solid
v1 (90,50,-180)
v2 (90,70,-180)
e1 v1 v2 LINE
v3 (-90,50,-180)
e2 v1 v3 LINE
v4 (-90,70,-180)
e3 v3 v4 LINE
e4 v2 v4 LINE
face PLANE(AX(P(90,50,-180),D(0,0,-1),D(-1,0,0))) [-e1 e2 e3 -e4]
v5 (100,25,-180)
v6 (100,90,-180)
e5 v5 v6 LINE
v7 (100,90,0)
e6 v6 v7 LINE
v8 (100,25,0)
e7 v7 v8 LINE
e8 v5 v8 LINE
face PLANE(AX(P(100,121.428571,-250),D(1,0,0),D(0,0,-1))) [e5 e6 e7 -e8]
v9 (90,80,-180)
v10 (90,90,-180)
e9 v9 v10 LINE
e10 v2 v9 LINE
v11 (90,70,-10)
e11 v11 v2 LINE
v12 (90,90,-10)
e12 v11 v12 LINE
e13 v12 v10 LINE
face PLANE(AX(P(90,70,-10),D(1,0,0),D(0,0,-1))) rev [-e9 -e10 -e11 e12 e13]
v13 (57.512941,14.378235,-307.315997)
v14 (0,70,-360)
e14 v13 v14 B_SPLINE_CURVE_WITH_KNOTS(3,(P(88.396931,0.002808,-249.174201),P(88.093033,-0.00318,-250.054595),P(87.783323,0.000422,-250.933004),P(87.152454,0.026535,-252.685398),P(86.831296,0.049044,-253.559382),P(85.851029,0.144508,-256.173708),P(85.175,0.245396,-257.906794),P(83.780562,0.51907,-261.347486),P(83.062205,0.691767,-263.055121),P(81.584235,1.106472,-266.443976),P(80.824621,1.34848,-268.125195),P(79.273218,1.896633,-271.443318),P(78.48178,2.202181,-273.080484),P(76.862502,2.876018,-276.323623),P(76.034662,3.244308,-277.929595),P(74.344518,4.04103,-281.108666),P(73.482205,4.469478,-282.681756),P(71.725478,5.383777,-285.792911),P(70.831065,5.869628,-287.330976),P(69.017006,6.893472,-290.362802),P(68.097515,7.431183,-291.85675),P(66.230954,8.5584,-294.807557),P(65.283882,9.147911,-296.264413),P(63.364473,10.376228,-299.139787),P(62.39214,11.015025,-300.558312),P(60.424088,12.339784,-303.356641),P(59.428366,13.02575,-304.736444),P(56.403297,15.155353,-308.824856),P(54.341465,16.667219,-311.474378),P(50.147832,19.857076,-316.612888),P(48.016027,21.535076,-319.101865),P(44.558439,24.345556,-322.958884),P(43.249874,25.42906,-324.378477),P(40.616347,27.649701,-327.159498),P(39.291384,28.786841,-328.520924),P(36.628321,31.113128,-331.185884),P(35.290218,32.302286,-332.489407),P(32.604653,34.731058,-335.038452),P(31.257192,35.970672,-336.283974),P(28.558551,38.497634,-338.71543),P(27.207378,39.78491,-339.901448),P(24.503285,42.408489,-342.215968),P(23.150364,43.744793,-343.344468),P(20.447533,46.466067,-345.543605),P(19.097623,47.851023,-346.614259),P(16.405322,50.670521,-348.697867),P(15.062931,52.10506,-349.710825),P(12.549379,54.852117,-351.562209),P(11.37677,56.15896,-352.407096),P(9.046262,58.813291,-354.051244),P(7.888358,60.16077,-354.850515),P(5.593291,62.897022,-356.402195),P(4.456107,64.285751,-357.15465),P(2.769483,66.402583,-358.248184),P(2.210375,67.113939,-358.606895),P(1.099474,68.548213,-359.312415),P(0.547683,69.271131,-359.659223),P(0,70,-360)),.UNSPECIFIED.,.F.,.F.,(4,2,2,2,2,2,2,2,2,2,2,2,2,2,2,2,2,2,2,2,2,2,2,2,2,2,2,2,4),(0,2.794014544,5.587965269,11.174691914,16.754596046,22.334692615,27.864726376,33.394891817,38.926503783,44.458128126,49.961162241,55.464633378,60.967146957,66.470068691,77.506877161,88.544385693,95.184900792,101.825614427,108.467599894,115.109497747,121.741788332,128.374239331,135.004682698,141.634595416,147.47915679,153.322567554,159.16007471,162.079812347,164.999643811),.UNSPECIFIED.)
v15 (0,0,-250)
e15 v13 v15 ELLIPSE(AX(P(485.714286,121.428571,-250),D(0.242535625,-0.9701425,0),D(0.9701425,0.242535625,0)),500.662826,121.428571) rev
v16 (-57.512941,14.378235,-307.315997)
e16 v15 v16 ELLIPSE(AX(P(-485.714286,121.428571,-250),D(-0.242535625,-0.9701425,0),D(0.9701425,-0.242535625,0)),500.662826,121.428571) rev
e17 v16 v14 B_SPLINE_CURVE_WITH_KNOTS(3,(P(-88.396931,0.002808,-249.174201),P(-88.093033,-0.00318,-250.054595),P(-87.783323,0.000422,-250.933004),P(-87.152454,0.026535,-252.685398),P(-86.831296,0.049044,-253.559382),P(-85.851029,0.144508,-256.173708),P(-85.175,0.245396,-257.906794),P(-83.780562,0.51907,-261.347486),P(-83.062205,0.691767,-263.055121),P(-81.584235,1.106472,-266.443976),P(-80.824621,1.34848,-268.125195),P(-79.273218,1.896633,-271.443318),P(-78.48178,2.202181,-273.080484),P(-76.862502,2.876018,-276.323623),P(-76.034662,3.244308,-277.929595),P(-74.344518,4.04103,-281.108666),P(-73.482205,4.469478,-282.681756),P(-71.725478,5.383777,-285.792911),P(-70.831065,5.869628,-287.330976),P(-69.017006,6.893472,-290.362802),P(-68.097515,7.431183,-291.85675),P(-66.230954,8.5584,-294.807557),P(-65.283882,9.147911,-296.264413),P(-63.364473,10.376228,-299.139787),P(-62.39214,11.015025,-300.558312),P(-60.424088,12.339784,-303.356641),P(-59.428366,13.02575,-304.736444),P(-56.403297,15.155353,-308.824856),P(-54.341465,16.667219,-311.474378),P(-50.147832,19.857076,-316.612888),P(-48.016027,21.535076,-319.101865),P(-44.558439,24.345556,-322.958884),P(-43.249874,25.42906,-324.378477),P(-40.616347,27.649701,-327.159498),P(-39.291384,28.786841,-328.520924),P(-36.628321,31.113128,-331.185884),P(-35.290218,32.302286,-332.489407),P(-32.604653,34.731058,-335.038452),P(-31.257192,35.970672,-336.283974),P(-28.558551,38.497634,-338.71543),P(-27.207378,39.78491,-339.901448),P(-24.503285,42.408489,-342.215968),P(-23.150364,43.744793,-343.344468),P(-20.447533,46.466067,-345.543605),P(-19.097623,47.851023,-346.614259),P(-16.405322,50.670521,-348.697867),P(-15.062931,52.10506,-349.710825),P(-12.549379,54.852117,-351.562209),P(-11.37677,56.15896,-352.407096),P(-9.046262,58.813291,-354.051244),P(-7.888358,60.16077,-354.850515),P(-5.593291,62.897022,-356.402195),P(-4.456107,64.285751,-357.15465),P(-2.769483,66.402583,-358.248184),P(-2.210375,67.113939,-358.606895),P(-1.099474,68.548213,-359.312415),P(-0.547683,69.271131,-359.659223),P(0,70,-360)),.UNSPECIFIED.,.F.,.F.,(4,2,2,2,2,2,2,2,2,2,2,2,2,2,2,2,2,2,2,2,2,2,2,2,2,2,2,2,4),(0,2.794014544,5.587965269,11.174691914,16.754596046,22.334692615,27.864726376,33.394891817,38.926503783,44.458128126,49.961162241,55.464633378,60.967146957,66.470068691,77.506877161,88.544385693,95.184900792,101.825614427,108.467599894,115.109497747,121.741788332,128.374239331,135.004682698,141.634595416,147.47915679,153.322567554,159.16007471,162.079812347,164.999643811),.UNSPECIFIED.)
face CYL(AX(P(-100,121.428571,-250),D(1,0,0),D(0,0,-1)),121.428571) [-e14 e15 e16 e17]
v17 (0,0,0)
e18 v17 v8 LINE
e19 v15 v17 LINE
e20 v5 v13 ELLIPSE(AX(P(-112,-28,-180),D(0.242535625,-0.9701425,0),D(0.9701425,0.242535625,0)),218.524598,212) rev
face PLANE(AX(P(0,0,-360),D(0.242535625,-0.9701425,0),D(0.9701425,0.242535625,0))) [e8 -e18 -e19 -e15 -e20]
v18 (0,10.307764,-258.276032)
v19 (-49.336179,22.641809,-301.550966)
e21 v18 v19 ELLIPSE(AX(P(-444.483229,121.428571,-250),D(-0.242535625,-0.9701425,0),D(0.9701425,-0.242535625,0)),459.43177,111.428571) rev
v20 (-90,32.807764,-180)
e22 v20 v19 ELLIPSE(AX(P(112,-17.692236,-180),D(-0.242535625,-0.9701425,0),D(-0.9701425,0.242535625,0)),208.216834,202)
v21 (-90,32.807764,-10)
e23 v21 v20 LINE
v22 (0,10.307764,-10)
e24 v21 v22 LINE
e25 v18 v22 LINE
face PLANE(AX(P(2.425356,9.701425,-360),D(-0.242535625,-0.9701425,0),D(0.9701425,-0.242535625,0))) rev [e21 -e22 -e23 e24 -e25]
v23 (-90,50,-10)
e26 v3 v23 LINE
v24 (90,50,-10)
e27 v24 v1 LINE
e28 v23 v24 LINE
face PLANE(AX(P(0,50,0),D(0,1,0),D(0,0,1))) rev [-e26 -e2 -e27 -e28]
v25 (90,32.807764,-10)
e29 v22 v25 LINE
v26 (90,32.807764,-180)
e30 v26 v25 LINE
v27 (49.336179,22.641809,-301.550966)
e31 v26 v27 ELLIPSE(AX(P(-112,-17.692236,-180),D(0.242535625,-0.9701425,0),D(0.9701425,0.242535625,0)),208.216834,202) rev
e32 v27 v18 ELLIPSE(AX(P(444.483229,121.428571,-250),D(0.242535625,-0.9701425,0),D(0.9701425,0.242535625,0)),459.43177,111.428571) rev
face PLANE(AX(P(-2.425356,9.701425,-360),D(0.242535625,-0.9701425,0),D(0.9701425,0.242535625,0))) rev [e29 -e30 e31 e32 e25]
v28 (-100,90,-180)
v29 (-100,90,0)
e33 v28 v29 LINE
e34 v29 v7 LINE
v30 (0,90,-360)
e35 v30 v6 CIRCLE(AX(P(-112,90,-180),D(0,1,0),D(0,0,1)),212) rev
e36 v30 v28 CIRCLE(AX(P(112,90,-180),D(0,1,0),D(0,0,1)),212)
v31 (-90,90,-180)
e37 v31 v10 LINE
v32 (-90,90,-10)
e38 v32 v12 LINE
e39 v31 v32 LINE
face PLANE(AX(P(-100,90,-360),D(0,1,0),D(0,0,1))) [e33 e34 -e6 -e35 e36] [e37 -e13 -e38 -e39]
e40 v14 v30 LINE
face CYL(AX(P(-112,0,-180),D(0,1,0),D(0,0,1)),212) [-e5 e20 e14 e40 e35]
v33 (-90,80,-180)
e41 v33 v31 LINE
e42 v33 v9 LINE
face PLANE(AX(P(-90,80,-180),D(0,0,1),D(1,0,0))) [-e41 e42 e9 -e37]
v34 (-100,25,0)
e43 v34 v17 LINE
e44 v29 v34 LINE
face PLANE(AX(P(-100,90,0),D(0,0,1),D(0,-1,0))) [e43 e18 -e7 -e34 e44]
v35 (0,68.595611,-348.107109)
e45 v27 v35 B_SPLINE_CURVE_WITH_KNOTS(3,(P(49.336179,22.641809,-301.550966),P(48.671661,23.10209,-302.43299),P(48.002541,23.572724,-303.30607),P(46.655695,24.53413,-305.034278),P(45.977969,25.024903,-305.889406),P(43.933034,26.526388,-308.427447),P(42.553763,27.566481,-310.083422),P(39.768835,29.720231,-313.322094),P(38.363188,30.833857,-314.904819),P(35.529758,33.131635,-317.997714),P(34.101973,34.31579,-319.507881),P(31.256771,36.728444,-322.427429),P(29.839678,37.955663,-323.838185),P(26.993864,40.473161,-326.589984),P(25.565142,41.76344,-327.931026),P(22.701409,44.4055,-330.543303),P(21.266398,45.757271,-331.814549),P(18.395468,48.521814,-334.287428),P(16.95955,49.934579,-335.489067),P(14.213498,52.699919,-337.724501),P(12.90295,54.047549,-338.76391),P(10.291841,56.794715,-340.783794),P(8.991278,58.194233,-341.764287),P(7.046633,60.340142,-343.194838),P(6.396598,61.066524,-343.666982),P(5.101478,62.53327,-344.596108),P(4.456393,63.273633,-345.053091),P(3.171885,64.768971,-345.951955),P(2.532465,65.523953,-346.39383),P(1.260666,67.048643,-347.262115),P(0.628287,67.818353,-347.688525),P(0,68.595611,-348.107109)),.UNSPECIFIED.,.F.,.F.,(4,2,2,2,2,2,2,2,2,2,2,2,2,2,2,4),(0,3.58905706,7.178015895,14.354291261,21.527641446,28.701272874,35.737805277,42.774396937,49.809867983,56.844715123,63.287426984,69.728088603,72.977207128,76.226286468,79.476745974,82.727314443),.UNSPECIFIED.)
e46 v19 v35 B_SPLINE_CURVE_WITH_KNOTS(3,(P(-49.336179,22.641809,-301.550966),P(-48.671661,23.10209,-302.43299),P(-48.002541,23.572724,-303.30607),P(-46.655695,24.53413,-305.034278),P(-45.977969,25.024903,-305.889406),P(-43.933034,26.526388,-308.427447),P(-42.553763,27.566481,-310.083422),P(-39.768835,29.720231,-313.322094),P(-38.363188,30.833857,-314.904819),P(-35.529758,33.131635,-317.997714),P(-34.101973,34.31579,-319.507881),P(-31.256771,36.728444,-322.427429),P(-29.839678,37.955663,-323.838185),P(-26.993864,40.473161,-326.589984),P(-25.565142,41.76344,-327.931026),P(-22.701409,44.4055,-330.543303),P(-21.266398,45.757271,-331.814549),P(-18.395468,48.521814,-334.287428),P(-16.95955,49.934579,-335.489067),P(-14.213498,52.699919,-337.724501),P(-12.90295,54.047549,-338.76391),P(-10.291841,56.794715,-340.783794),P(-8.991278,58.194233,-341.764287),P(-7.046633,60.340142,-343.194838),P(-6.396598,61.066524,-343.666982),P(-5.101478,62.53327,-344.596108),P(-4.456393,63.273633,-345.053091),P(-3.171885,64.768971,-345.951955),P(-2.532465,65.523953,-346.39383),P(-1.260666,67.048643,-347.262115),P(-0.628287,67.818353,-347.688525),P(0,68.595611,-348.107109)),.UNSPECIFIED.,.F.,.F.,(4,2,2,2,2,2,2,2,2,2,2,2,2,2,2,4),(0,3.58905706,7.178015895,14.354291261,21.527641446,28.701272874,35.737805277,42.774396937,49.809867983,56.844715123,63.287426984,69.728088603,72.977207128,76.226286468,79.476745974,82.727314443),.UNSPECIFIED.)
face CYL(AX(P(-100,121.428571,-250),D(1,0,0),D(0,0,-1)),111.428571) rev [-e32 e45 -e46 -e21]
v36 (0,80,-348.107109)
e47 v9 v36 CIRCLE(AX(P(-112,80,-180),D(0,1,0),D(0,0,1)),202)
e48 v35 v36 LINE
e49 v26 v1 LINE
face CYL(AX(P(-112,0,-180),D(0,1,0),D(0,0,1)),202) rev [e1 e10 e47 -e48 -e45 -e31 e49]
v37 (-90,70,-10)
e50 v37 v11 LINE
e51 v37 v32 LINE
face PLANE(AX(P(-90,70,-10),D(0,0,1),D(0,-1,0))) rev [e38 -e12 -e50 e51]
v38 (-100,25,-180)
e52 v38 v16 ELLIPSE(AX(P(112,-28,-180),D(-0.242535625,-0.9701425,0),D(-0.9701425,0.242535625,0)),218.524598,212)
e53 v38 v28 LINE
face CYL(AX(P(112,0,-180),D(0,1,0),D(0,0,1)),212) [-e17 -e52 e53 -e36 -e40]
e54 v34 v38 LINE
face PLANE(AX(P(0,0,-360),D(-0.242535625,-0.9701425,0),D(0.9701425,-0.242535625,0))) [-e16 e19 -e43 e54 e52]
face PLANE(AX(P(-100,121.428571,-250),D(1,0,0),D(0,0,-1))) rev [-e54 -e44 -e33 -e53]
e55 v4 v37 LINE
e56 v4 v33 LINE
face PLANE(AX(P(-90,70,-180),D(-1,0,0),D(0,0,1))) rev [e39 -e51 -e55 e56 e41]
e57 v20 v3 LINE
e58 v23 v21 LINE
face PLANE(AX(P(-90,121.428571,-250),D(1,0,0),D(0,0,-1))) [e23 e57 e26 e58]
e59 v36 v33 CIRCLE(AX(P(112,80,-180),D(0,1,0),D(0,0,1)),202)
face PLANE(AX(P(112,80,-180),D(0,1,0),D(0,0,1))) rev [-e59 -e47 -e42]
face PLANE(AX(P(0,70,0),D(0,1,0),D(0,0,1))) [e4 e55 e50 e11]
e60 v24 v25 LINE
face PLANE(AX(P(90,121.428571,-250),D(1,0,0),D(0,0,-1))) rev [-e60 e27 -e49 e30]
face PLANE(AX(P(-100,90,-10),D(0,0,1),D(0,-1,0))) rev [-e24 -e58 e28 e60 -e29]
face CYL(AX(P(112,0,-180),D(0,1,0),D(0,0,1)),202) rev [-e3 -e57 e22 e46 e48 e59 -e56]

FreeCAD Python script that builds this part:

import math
import FreeCAD as App
import Part
import Sketcher


def faces_at(feature, points):
    """Names of the faces that lie closest to the given points."""
    faces = feature.Shape.Faces
    near = lambda p: min(range(len(faces)), key=lambda i: faces[i].distToShape(Part.Vertex(*p))[0])
    return sorted({f"Face{near(p) + 1}" for p in points})

doc = App.newDocument("Part")
body = doc.addObject("PartDesign::Body", "Body")

sketch1 = body.newObject("Sketcher::SketchObject", "Sketch")
sketch1.AttachmentSupport = (doc.getObject("YZ_Plane"), [""])
sketch1.MapMode = "FlatFace"
sketch1.addGeometry(Part.LineSegment(App.Vector(0, 0, 0), App.Vector(0, -250, 0)), False)
sketch1.addGeometry(Part.ArcOfCircle(Part.Circle(App.Vector(121.428571, -250, 0), App.Vector(0, 0, 1), 121.428571), math.radians(180), math.radians(244.942385)), False)
sketch1.addGeometry(Part.LineSegment(App.Vector(70, -360, 0), App.Vector(90, -360, 0)), False)
sketch1.addGeometry(Part.LineSegment(App.Vector(90, -360, 0), App.Vector(90, 0, 0)), False)
sketch1.addGeometry(Part.LineSegment(App.Vector(90, 0, 0), App.Vector(0, 0, 0)), False)
sketch1.addConstraint(Sketcher.Constraint("Tangent", 0, 2, 1, 1))
sketch1.addConstraint(Sketcher.Constraint("Coincident", 1, 2, 2, 1))
sketch1.addConstraint(Sketcher.Constraint("Coincident", 2, 2, 3, 1))
sketch1.addConstraint(Sketcher.Constraint("Coincident", 3, 2, 4, 1))
sketch1.addConstraint(Sketcher.Constraint("Coincident", 4, 2, 0, 1))
sketch1.addConstraint(Sketcher.Constraint("Vertical", 0))
sketch1.addConstraint(Sketcher.Constraint("Horizontal", 2))
sketch1.addConstraint(Sketcher.Constraint("Vertical", 3))
sketch1.addConstraint(Sketcher.Constraint("Horizontal", 4))
sketch1.addConstraint(Sketcher.Constraint("Coincident", 4, 2, -1, 1))
sketch1.addConstraint(Sketcher.Constraint("DistanceX", 2, 1, 2, 2, 20.0))
sketch1.addConstraint(Sketcher.Constraint("DistanceX", 4, 2, 4, 1, 90.0))
sketch1.addConstraint(Sketcher.Constraint("DistanceY", 0, 2, 0, 1, 250.0))
sketch1.addConstraint(Sketcher.Constraint("DistanceY", 3, 1, 3, 2, 360.0))
pad1 = body.newObject("PartDesign::Pad", "Pad")
pad1.Profile = sketch1
pad1.Length = 200
pad1.Midplane = True

sketch2 = body.newObject("Sketcher::SketchObject", "Sketch001")
sketch2.AttachmentSupport = (doc.getObject("XY_Plane"), [""])
sketch2.MapMode = "FlatFace"
sketch2.addGeometry(Part.LineSegment(App.Vector(0, 0, 0), App.Vector(-100, 25, 0)), False)
sketch2.addGeometry(Part.LineSegment(App.Vector(-100, 25, 0), App.Vector(-100, 0, 0)), False)
sketch2.addGeometry(Part.LineSegment(App.Vector(-100, 0, 0), App.Vector(0, 0, 0)), False)
sketch2.addGeometry(Part.LineSegment(App.Vector(100, 0, 0), App.Vector(100, 25, 0)), False)
sketch2.addGeometry(Part.LineSegment(App.Vector(100, 25, 0), App.Vector(0, 0, 0)), False)
sketch2.addGeometry(Part.LineSegment(App.Vector(0, 0, 0), App.Vector(100, 0, 0)), False)
sketch2.addConstraint(Sketcher.Constraint("Coincident", 0, 2, 1, 1))
sketch2.addConstraint(Sketcher.Constraint("Coincident", 1, 2, 2, 1))
sketch2.addConstraint(Sketcher.Constraint("Coincident", 2, 2, 0, 1))
sketch2.addConstraint(Sketcher.Constraint("Coincident", 3, 2, 4, 1))
sketch2.addConstraint(Sketcher.Constraint("Coincident", 4, 2, 5, 1))
sketch2.addConstraint(Sketcher.Constraint("Coincident", 5, 2, 3, 1))
sketch2.addConstraint(Sketcher.Constraint("Vertical", 1))
sketch2.addConstraint(Sketcher.Constraint("Horizontal", 2))
sketch2.addConstraint(Sketcher.Constraint("Vertical", 3))
sketch2.addConstraint(Sketcher.Constraint("Horizontal", 5))
sketch2.addConstraint(Sketcher.Constraint("Coincident", 2, 2, -1, 1))
sketch2.addConstraint(Sketcher.Constraint("Coincident", 4, 2, -1, 1))
sketch2.addConstraint(Sketcher.Constraint("Symmetric", 0, 2, 3, 2, -2))
sketch2.addConstraint(Sketcher.Constraint("DistanceX", 2, 1, 2, 2, 100.0))
sketch2.addConstraint(Sketcher.Constraint("DistanceY", 1, 2, 1, 1, 25.0))
pocket1 = body.newObject("PartDesign::Pocket", "Pocket")
pocket1.Profile = sketch2
pocket1.Type = "ThroughAll"

sketch3 = body.newObject("Sketcher::SketchObject", "Sketch002")
sketch3.AttachmentSupport = (doc.getObject("XZ_Plane"), [""])
sketch3.MapMode = "FlatFace"
sketch3.AttachmentOffset = App.Placement(App.Vector(0, 0, -90), App.Rotation())
sketch3.addGeometry(Part.LineSegment(App.Vector(100, -360, 0), App.Vector(0, -360, 0)), False)
sketch3.addGeometry(Part.ArcOfCircle(Part.Circle(App.Vector(-112, -180, 0), App.Vector(0, 0, 1), 212), math.radians(-58.109208), math.radians(0)), False)
sketch3.addGeometry(Part.LineSegment(App.Vector(100, -180, 0), App.Vector(100, -360, 0)), False)
sketch3.addGeometry(Part.LineSegment(App.Vector(-100, -360, 0), App.Vector(-100, -180, 0)), False)
sketch3.addGeometry(Part.ArcOfCircle(Part.Circle(App.Vector(112, -180, 0), App.Vector(0, 0, 1), 212), math.radians(180), math.radians(238.109208)), False)
sketch3.addGeometry(Part.LineSegment(App.Vector(0, -360, 0), App.Vector(-100, -360, 0)), False)
sketch3.addConstraint(Sketcher.Constraint("Coincident", 0, 2, 1, 1))
sketch3.addConstraint(Sketcher.Constraint("Tangent", 1, 2, 2, 1))
sketch3.addConstraint(Sketcher.Constraint("Coincident", 2, 2, 0, 1))
sketch3.addConstraint(Sketcher.Constraint("Tangent", 3, 2, 4, 1))
sketch3.addConstraint(Sketcher.Constraint("Coincident", 4, 2, 5, 1))
sketch3.addConstraint(Sketcher.Constraint("Coincident", 5, 2, 3, 1))
sketch3.addConstraint(Sketcher.Constraint("Horizontal", 0))
sketch3.addConstraint(Sketcher.Constraint("Vertical", 2))
sketch3.addConstraint(Sketcher.Constraint("Vertical", 3))
sketch3.addConstraint(Sketcher.Constraint("Horizontal", 5))
sketch3.addConstraint(Sketcher.Constraint("Coincident", 4, 2, 0, 2))
sketch3.addConstraint(Sketcher.Constraint("Equal", 1, 4))
sketch3.addConstraint(Sketcher.Constraint("Symmetric", 1, 3, 4, 3, -2))
sketch3.addConstraint(Sketcher.Constraint("Radius", 1, 212.0))
sketch3.addConstraint(Sketcher.Constraint("DistanceX", 0, 2, 0, 1, 100.0))
sketch3.addConstraint(Sketcher.Constraint("DistanceY", 1, 3, -1, 1, 180.0))
pocket2 = body.newObject("PartDesign::Pocket", "Pocket001")
pocket2.Profile = sketch3
pocket2.Type = "ThroughAll"
pocket2.Reversed = True
doc.recompute()

thickness = body.newObject("PartDesign::Thickness", "Thickness")
thickness.Base = (pocket2, faces_at(pocket2, [(0, 90, -180)]))
thickness.Value = 10
thickness.Reversed = True
thickness.Join = "Arc"

sketch4 = body.newObject("Sketcher::SketchObject", "Sketch003")
sketch4.AttachmentSupport = (doc.getObject("XZ_Plane"), [""])
sketch4.MapMode = "FlatFace"
sketch4.AttachmentOffset = App.Placement(App.Vector(0, 0, -90), App.Rotation())
sketch4.addGeometry(Part.LineSegment(App.Vector(-90, -180, 0), App.Vector(-90, -10, 0)), False)
sketch4.addGeometry(Part.LineSegment(App.Vector(-90, -10, 0), App.Vector(90, -10, 0)), False)
sketch4.addGeometry(Part.LineSegment(App.Vector(90, -10, 0), App.Vector(90, -180, 0)), False)
sketch4.addGeometry(Part.LineSegment(App.Vector(90, -180, 0), App.Vector(-90, -180, 0)), False)
sketch4.addConstraint(Sketcher.Constraint("Coincident", 0, 2, 1, 1))
sketch4.addConstraint(Sketcher.Constraint("Coincident", 1, 2, 2, 1))
sketch4.addConstraint(Sketcher.Constraint("Coincident", 2, 2, 3, 1))
sketch4.addConstraint(Sketcher.Constraint("Coincident", 3, 2, 0, 1))
sketch4.addConstraint(Sketcher.Constraint("Vertical", 0))
sketch4.addConstraint(Sketcher.Constraint("Horizontal", 1))
sketch4.addConstraint(Sketcher.Constraint("Vertical", 2))
sketch4.addConstraint(Sketcher.Constraint("Horizontal", 3))
sketch4.addConstraint(Sketcher.Constraint("DistanceX", 1, 1, 1, 2, 180.0))
sketch4.addConstraint(Sketcher.Constraint("DistanceY", 0, 1, 0, 2, 170.0))
sketch4.addConstraint(Sketcher.Constraint("DistanceX", 0, 2, -1, 1, 90.0))
sketch4.addConstraint(Sketcher.Constraint("DistanceY", 0, 2, -1, 1, 10.0))
pad2 = body.newObject("PartDesign::Pad", "Pad001")
pad2.Profile = sketch4
pad2.Length = 40

sketch5 = body.newObject("Sketcher::SketchObject", "Sketch004")
sketch5.AttachmentSupport = (doc.getObject("XZ_Plane"), [""])
sketch5.MapMode = "FlatFace"
sketch5.AttachmentOffset = App.Placement(App.Vector(0, 0, -90), App.Rotation())
sketch5.addGeometry(Part.LineSegment(App.Vector(-90, -180, 0), App.Vector(-90, -10, 0)), False)
sketch5.addGeometry(Part.LineSegment(App.Vector(-90, -10, 0), App.Vector(90, -10, 0)), False)
sketch5.addGeometry(Part.LineSegment(App.Vector(90, -10, 0), App.Vector(90, -180, 0)), False)
sketch5.addGeometry(Part.LineSegment(App.Vector(90, -180, 0), App.Vector(-90, -180, 0)), False)
sketch5.addConstraint(Sketcher.Constraint("Coincident", 0, 2, 1, 1))
sketch5.addConstraint(Sketcher.Constraint("Coincident", 1, 2, 2, 1))
sketch5.addConstraint(Sketcher.Constraint("Coincident", 2, 2, 3, 1))
sketch5.addConstraint(Sketcher.Constraint("Coincident", 3, 2, 0, 1))
sketch5.addConstraint(Sketcher.Constraint("Vertical", 0))
sketch5.addConstraint(Sketcher.Constraint("Horizontal", 1))
sketch5.addConstraint(Sketcher.Constraint("Vertical", 2))
sketch5.addConstraint(Sketcher.Constraint("Horizontal", 3))
sketch5.addConstraint(Sketcher.Constraint("DistanceX", 1, 1, 1, 2, 180.0))
sketch5.addConstraint(Sketcher.Constraint("DistanceY", 0, 1, 0, 2, 170.0))
sketch5.addConstraint(Sketcher.Constraint("DistanceX", 0, 2, -1, 1, 90.0))
sketch5.addConstraint(Sketcher.Constraint("DistanceY", 0, 2, -1, 1, 10.0))
pocket3 = body.newObject("PartDesign::Pocket", "Pocket002")
pocket3.Profile = sketch5
pocket3.Length = 20
pocket3.Reversed = True

sketch6 = body.newObject("Sketcher::SketchObject", "Sketch005")
sketch6.AttachmentSupport = (doc.getObject("XZ_Plane"), [""])
sketch6.MapMode = "FlatFace"
sketch6.AttachmentOffset = App.Placement(App.Vector(0, 0, -90), App.Rotation())
sketch6.addGeometry(Part.LineSegment(App.Vector(-90, -180, 0), App.Vector(90, -180, 0)), False)
sketch6.addGeometry(Part.ArcOfCircle(Part.Circle(App.Vector(-112, -180, 0), App.Vector(0, 0, 1), 202), math.radians(-56.326785), math.radians(0)), False)
sketch6.addGeometry(Part.ArcOfCircle(Part.Circle(App.Vector(112, -180, 0), App.Vector(0, 0, 1), 202), math.radians(180), math.radians(236.326785)), False)
sketch6.addConstraint(Sketcher.Constraint("Coincident", 0, 2, 1, 2))
sketch6.addConstraint(Sketcher.Constraint("Coincident", 1, 1, 2, 2))
sketch6.addConstraint(Sketcher.Constraint("Coincident", 2, 1, 0, 1))
sketch6.addConstraint(Sketcher.Constraint("Horizontal", 0))
sketch6.addConstraint(Sketcher.Constraint("Equal", 1, 2))
sketch6.addConstraint(Sketcher.Constraint("Symmetric", 1, 3, 2, 3, -2))
sketch6.addConstraint(Sketcher.Constraint("Horizontal", 2, 3, 0, 2))
sketch6.addConstraint(Sketcher.Constraint("Radius", 1, 202.0))
sketch6.addConstraint(Sketcher.Constraint("DistanceX", 0, 1, 0, 2, 180.0))
sketch6.addConstraint(Sketcher.Constraint("DistanceY", 1, 3, -1, 1, 180.0))
pad3 = body.newObject("PartDesign::Pad", "Pad002")
pad3.Profile = sketch6
pad3.Length = 10

doc.recompute()
